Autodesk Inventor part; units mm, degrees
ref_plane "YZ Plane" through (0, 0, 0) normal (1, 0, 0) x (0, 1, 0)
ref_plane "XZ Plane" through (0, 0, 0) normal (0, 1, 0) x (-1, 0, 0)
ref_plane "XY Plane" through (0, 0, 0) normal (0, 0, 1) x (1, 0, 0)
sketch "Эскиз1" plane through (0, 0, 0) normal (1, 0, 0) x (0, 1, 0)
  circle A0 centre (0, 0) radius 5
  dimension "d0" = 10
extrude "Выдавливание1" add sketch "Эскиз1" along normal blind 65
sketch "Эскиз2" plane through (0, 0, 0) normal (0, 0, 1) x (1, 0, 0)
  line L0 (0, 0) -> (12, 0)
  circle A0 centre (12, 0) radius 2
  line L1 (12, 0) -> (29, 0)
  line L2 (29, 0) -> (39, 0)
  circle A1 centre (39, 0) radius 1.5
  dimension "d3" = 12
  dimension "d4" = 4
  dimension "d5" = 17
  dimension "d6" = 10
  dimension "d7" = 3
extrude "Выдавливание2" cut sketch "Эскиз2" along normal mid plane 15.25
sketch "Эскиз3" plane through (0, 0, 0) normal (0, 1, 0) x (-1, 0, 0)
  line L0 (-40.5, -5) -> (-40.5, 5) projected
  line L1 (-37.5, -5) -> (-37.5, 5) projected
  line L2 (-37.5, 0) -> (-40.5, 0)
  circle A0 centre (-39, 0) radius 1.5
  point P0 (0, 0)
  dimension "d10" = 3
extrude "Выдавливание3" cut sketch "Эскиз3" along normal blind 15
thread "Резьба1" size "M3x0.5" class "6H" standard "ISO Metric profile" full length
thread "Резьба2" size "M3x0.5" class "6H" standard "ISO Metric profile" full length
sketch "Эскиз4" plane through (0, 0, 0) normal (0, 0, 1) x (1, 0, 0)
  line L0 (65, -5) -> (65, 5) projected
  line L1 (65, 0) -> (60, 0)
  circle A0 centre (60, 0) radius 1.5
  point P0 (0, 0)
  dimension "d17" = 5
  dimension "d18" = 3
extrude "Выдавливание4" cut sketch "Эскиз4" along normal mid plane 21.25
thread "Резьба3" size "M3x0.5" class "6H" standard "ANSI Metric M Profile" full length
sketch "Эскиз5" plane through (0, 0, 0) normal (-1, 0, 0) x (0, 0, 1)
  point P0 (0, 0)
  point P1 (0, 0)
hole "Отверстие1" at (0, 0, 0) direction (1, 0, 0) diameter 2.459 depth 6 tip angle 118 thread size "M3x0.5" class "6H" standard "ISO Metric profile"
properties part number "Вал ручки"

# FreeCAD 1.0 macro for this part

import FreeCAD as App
import Part
import Sketcher

doc = App.newDocument("Part")
body = doc.addObject("PartDesign::Body", "Body")

sketch1 = body.newObject("Sketcher::SketchObject", "Sketch")
sketch1.AttachmentSupport = (doc.getObject("YZ_Plane"), [""])
sketch1.MapMode = "FlatFace"
sketch1.addGeometry(Part.Circle(App.Vector(0, 0, 0), App.Vector(0, 0, 1), 5), False)
sketch1.addConstraint([
    Sketcher.Constraint("Coincident", 0, 3, -1, 1),
    Sketcher.Constraint("Diameter", 0, 10.0),
])
pad1 = body.newObject("PartDesign::Pad", "Pad")
pad1.Profile = sketch1
pad1.Length = 65

sketch2 = body.newObject("Sketcher::SketchObject", "Sketch001")
sketch2.AttachmentSupport = (doc.getObject("XY_Plane"), [""])
sketch2.MapMode = "FlatFace"
sketch2.addGeometry([
    Part.Circle(App.Vector(12, 0, 0), App.Vector(0, 0, 1), 2),
    Part.Circle(App.Vector(39, 0, 0), App.Vector(0, 0, 1), 1.5),
], False)
sketch2.addConstraint([
    Sketcher.Constraint("PointOnObject", 0, 3, -1),
    Sketcher.Constraint("PointOnObject", 1, 3, -1),
    Sketcher.Constraint("Diameter", 0, 4.0),
    Sketcher.Constraint("Diameter", 1, 3.0),
    Sketcher.Constraint("DistanceX", -1, 1, 0, 3, 12.0),
    Sketcher.Constraint("DistanceX", -1, 1, 1, 3, 39.0),
])
pocket1 = body.newObject("PartDesign::Pocket", "Pocket")
pocket1.Profile = sketch2
pocket1.Length = 15.25
pocket1.Midplane = True

sketch3 = body.newObject("Sketcher::SketchObject", "Sketch002")
sketch3.AttachmentSupport = (doc.getObject("XZ_Plane"), [""])
sketch3.MapMode = "FlatFace"
sketch3.addGeometry(Part.Circle(App.Vector(39, 0, 0), App.Vector(0, 0, 1), 1.5), False)
sketch3.addConstraint([
    Sketcher.Constraint("PointOnObject", 0, 3, -1),
    Sketcher.Constraint("Diameter", 0, 3.0),
    Sketcher.Constraint("DistanceX", -1, 1, 0, 3, 39.0),
])
pocket2 = body.newObject("PartDesign::Pocket", "Pocket001")
pocket2.Profile = sketch3
pocket2.Length = 15

sketch4 = body.newObject("Sketcher::SketchObject", "Sketch003")
sketch4.AttachmentSupport = (doc.getObject("XY_Plane"), [""])
sketch4.MapMode = "FlatFace"
sketch4.addGeometry(Part.Circle(App.Vector(60, 0, 0), App.Vector(0, 0, 1), 1.5), False)
sketch4.addConstraint([
    Sketcher.Constraint("PointOnObject", 0, 3, -1),
    Sketcher.Constraint("Diameter", 0, 3.0),
    Sketcher.Constraint("DistanceX", -1, 1, 0, 3, 60.0),
])
pocket3 = body.newObject("PartDesign::Pocket", "Pocket002")
pocket3.Profile = sketch4
pocket3.Length = 21.25
pocket3.Midplane = True

sketch5 = body.newObject("Sketcher::SketchObject", "Sketch004")
sketch5.AttachmentSupport = (doc.getObject("YZ_Plane"), [""])
sketch5.MapMode = "FlatFace"
sketch5.addGeometry(Part.Circle(App.Vector(0, 0, 0), App.Vector(0, 0, 1), 1.2), False)
sketch5.addConstraint([
    Sketcher.Constraint("Coincident", 0, 3, -1, 1),
    Sketcher.Constraint("Diameter", 0, 2.459),
])
doc.recompute()
hole = body.newObject("PartDesign::Hole", "Hole")
hole.Profile = sketch5
hole.ThreadType = "None"
hole.Diameter = 2.459
hole.DepthType = "Dimension"
hole.Depth = 6
hole.DrillPoint = "Angled"
hole.DrillPointAngle = 118
hole.Reversed = True

doc.recompute()
